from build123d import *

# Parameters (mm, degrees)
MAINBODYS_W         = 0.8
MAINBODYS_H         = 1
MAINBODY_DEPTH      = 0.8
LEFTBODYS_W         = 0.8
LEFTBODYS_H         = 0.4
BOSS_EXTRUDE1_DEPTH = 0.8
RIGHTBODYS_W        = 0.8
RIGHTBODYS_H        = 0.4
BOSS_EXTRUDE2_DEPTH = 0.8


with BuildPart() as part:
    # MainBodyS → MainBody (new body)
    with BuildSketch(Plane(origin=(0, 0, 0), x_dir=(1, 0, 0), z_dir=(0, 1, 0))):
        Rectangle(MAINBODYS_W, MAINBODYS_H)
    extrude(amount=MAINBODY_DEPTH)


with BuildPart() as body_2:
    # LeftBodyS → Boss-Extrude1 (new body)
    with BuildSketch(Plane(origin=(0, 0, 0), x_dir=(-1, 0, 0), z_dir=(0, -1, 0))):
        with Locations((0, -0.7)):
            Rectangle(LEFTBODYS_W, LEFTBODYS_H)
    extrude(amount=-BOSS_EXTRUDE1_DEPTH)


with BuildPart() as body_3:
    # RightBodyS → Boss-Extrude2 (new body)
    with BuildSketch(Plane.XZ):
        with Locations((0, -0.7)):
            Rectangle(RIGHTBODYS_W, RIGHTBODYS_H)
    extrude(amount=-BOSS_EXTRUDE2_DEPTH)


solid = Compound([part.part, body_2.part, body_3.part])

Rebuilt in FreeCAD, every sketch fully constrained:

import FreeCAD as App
import Part
import Sketcher

V = App.Vector
Q = App.Units.Quantity

doc = App.newDocument("Part")
params = doc.addObject("Spreadsheet::Sheet", "Params")
for row, (alias, value) in enumerate([
    ("sketch1_height", "1 mm"),
    ("sketch1_width", "0.8 mm"),
    ("pad1_length", "0.8 mm"),
    ("sketch2_width", "0.8 mm"),
    ("sketch2_height", "0.4 mm"),
    ("pad2_length", "0.8 mm"),
    ("sketch3_width", "0.8 mm"),
    ("sketch3_height", "0.4 mm"),
    ("pad3_length", "0.8 mm"),
], start=1):
    params.set(f"A{row}", alias)
    params.set(f"B{row}", "=" + value)
    params.setAlias(f"B{row}", alias)

body = doc.addObject("PartDesign::Body", "Body")

sketch1 = doc.addObject("Sketcher::SketchObject", "Sketch")
body.addObject(sketch1)
sketch1.AttachmentSupport = (doc.XZ_Plane, [""])
sketch1.MapMode = "FlatFace"
sketch1.addGeometry([
    Part.LineSegment(V(-0.4, -0.5, 0), V(-0.4, 0.5, 0)),
    Part.LineSegment(V(-0.4, 0.5, 0), V(0.4, 0.5, 0)),
    Part.LineSegment(V(0.4, 0.5, 0), V(0.4, -0.5, 0)),
    Part.LineSegment(V(0.4, -0.5, 0), V(-0.4, -0.5, 0)),
], False)
sketch1.addConstraint([
    Sketcher.Constraint("Coincident", 0, 2, 1, 1),
    Sketcher.Constraint("Coincident", 1, 2, 2, 1),
    Sketcher.Constraint("Coincident", 2, 2, 3, 1),
    Sketcher.Constraint("Coincident", 3, 2, 0, 1),
    Sketcher.Constraint("Vertical", 0),
    Sketcher.Constraint("Horizontal", 1),
    Sketcher.Constraint("Vertical", 2),
    Sketcher.Constraint("Horizontal", 3),
    Sketcher.Constraint("Symmetric", 0, 2, 2, 2, -1, 1),
    Sketcher.Constraint("DistanceY", 0, 1, 0, 2, Q("1 mm")),
    Sketcher.Constraint("DistanceX", 1, 1, 1, 2, Q("0.8 mm")),
])
sketch1.setExpression("Constraints[9]", "Params.sketch1_height")
sketch1.setExpression("Constraints[10]", "Params.sketch1_width")
pad1 = doc.addObject("PartDesign::Pad", "Pad")
body.addObject(pad1)
pad1.Profile = sketch1
pad1.setExpression("Length", "Params.pad1_length")
pad1.Reversed = True
body2 = doc.addObject("PartDesign::Body", "Body001")

sketch2 = doc.addObject("Sketcher::SketchObject", "Sketch001")
body2.addObject(sketch2)
sketch2.AttachmentSupport = (doc.getObject("XZ_Plane001"), [""])
sketch2.MapMode = "FlatFace"
sketch2.addGeometry([
    Part.LineSegment(V(0.4, 0.5, 0), V(0.4, 0.9, 0)),
    Part.LineSegment(V(0.4, 0.9, 0), V(-0.4, 0.9, 0)),
    Part.LineSegment(V(-0.4, 0.9, 0), V(-0.4, 0.5, 0)),
    Part.LineSegment(V(-0.4, 0.5, 0), V(0.4, 0.5, 0)),
], False)
sketch2.addConstraint([
    Sketcher.Constraint("Coincident", 0, 2, 1, 1),
    Sketcher.Constraint("Coincident", 1, 2, 2, 1),
    Sketcher.Constraint("Coincident", 2, 2, 3, 1),
    Sketcher.Constraint("Coincident", 3, 2, 0, 1),
    Sketcher.Constraint("Vertical", 0),
    Sketcher.Constraint("Horizontal", 1),
    Sketcher.Constraint("Vertical", 2),
    Sketcher.Constraint("Horizontal", 3),
    Sketcher.Constraint("DistanceX", 1, 2, 1, 1, Q("0.8 mm")),
    Sketcher.Constraint("DistanceY", 0, 1, 0, 2, Q("0.4 mm")),
    Sketcher.Constraint("DistanceX", -1, 1, 0, 2, Q("0.4 mm")),
    Sketcher.Constraint("DistanceY", -1, 1, 0, 2, Q("0.9 mm")),
])
sketch2.setExpression("Constraints[8]", "Params.sketch2_width")
sketch2.setExpression("Constraints[9]", "Params.sketch2_height")
pad2 = doc.addObject("PartDesign::Pad", "Pad001")
body2.addObject(pad2)
pad2.Profile = sketch2
pad2.setExpression("Length", "Params.pad2_length")
pad2.Reversed = True
body3 = doc.addObject("PartDesign::Body", "Body002")

sketch3 = doc.addObject("Sketcher::SketchObject", "Sketch002")
body3.addObject(sketch3)
sketch3.AttachmentSupport = (doc.getObject("XZ_Plane002"), [""])
sketch3.MapMode = "FlatFace"
sketch3.addGeometry([
    Part.LineSegment(V(-0.4, -0.5, 0), V(-0.4, -0.9, 0)),
    Part.LineSegment(V(-0.4, -0.9, 0), V(0.4, -0.9, 0)),
    Part.LineSegment(V(0.4, -0.9, 0), V(0.4, -0.5, 0)),
    Part.LineSegment(V(0.4, -0.5, 0), V(-0.4, -0.5, 0)),
], False)
sketch3.addConstraint([
    Sketcher.Constraint("Coincident", 0, 2, 1, 1),
    Sketcher.Constraint("Coincident", 1, 2, 2, 1),
    Sketcher.Constraint("Coincident", 2, 2, 3, 1),
    Sketcher.Constraint("Coincident", 3, 2, 0, 1),
    Sketcher.Constraint("Vertical", 0),
    Sketcher.Constraint("Horizontal", 1),
    Sketcher.Constraint("Vertical", 2),
    Sketcher.Constraint("Horizontal", 3),
    Sketcher.Constraint("DistanceX", 1, 1, 1, 2, Q("0.8 mm")),
    Sketcher.Constraint("DistanceY", 0, 2, 0, 1, Q("0.4 mm")),
    Sketcher.Constraint("DistanceX", 0, 2, -1, 1, Q("0.4 mm")),
    Sketcher.Constraint("DistanceY", 0, 2, -1, 1, Q("0.9 mm")),
])
sketch3.setExpression("Constraints[8]", "Params.sketch3_width")
sketch3.setExpression("Constraints[9]", "Params.sketch3_height")
pad3 = doc.addObject("PartDesign::Pad", "Pad002")
body3.addObject(pad3)
pad3.Profile = sketch3
pad3.setExpression("Length", "Params.pad3_length")
pad3.Reversed = True

doc.recompute()
